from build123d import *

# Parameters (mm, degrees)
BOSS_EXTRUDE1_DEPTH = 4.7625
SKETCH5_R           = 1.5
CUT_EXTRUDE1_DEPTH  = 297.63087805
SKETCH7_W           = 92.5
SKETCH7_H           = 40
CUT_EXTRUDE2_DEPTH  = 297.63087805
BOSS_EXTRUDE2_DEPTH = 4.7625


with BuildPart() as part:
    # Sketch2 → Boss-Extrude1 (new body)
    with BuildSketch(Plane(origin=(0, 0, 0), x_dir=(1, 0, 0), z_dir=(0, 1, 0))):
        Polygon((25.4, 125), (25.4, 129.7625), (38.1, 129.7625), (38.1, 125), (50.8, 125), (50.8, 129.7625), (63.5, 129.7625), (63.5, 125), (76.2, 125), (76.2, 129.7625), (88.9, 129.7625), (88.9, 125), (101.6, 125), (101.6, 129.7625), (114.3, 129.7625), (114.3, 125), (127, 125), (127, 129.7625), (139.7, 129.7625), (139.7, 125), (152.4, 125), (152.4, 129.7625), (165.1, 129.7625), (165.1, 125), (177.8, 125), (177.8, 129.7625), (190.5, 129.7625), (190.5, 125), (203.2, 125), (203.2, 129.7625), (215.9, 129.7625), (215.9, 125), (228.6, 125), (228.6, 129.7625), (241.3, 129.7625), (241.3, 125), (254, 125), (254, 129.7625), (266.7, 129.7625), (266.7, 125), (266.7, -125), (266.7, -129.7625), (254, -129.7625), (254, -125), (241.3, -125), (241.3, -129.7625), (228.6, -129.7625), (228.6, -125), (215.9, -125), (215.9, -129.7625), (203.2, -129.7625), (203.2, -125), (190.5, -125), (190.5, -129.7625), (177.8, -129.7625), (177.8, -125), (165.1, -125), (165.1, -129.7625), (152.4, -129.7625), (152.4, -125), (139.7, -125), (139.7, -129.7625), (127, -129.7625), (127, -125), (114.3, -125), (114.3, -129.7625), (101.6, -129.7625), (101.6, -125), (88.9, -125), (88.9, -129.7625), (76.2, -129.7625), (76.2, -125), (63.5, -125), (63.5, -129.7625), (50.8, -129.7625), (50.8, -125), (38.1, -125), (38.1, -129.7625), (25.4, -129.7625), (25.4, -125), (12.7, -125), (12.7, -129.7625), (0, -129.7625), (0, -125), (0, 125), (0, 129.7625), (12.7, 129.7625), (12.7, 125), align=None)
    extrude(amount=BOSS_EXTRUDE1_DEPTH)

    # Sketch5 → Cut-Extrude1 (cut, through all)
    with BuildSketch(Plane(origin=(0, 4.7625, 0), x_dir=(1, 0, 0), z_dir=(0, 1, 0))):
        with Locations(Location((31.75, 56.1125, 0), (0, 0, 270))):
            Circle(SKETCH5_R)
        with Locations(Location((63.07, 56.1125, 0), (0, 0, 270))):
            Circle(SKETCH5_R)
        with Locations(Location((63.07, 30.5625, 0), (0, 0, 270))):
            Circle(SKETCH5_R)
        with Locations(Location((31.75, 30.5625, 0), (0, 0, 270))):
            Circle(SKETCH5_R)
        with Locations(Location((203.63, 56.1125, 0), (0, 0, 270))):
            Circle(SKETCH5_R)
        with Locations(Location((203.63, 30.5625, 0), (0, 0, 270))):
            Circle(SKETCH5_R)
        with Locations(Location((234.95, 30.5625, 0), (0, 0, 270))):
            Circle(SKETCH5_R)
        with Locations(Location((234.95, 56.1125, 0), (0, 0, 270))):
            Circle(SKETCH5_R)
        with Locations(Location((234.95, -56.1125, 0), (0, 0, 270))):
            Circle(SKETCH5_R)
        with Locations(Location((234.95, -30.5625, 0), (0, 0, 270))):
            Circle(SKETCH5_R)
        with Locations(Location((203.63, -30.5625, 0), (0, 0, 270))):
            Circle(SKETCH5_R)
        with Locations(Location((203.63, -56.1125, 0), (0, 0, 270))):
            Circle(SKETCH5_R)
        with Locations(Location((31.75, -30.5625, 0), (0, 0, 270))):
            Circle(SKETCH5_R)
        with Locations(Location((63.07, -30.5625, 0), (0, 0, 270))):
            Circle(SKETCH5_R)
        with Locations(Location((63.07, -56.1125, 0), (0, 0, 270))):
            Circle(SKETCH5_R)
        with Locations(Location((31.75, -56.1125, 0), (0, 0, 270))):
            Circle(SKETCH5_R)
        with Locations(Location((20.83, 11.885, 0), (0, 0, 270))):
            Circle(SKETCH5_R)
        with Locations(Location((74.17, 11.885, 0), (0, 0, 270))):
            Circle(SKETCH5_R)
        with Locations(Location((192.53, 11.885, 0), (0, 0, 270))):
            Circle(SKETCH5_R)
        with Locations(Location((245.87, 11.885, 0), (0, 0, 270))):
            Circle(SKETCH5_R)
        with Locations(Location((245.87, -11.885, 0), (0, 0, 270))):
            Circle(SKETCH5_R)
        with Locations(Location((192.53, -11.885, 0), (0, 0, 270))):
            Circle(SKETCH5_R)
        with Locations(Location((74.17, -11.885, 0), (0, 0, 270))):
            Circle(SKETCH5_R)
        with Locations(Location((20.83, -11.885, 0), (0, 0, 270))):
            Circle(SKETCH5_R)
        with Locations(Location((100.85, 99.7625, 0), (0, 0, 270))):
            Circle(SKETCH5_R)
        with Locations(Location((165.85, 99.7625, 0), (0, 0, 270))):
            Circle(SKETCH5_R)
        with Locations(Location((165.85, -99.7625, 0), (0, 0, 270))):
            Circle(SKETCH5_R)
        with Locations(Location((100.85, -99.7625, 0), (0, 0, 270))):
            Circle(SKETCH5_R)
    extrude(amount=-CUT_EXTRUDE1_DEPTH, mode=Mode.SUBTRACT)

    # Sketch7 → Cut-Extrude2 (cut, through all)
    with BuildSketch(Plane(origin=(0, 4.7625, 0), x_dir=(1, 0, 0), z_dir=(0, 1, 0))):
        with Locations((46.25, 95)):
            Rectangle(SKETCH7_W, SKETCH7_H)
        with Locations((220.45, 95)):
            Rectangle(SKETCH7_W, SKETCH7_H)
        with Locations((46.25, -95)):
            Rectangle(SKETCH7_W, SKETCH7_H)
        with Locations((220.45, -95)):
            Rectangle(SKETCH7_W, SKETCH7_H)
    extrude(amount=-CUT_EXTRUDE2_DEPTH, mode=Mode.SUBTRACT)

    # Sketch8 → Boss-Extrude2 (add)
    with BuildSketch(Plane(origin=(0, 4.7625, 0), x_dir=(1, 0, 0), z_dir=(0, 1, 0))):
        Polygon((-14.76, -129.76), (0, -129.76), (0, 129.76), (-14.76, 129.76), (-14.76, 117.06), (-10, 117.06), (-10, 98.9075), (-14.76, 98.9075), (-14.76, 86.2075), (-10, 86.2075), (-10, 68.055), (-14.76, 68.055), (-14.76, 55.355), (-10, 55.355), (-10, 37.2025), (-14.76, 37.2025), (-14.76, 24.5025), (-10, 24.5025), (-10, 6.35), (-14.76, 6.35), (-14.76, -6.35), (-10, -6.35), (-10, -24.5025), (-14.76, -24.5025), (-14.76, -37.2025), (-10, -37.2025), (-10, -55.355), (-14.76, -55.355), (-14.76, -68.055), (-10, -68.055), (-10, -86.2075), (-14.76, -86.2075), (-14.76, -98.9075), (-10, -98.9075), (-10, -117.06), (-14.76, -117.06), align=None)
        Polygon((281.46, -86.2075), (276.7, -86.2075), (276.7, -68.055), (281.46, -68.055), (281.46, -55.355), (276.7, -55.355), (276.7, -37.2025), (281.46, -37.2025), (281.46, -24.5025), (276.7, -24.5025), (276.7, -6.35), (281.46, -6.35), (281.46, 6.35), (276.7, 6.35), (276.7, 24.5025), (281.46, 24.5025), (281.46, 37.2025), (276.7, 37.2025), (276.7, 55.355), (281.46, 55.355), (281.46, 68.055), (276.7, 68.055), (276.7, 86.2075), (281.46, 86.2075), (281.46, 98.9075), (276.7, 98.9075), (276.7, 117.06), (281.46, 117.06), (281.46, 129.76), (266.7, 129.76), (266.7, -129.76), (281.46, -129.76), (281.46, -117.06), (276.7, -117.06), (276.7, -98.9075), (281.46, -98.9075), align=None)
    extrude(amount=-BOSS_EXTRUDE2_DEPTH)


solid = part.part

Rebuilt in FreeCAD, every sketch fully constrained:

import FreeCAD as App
import Part
import Sketcher

V = App.Vector


def add_polygon(sketch, points):
    """Adds a closed chain of lines whose ends are joined by coincident constraints."""
    first, n = sketch.GeometryCount, len(points)
    for a, b in zip(points, points[1:] + points[:1]):
        sketch.addGeometry(Part.LineSegment(App.Vector(*a, 0), App.Vector(*b, 0)), False)
    for i in range(n):
        sketch.addConstraint(Sketcher.Constraint("Coincident", first + i, 2, first + (i + 1) % n, 1))

doc = App.newDocument("Part")
body = doc.addObject("PartDesign::Body", "Body")

# Sketch on XZ plane
sketch1 = body.newObject("Sketcher::SketchObject", "Sketch")
sketch1.AttachmentSupport = (doc.getObject("XZ_Plane"), [""])
sketch1.MapMode = "FlatFace"
add_polygon(sketch1, [(25.4, -129.8), (25.4, -125), (12.7, -125), (12.7, -129.8), (0, -129.8), (0, 129.8), (12.7, 129.8), (12.7, 125), (25.4, 125), (25.4, 129.8), (38.1, 129.8), (38.1, 125), (50.8, 125), (50.8, 129.8), (63.5, 129.8), (63.5, 125), (76.2, 125), (76.2, 129.8), (88.9, 129.8), (88.9, 125), (101.6, 125), (101.6, 129.8), (114.3, 129.8), (114.3, 125), (127, 125), (127, 129.8), (139.7, 129.8), (139.7, 125), (152.4, 125), (152.4, 129.8), (165.1, 129.8), (165.1, 125), (177.8, 125), (177.8, 129.8), (190.5, 129.8), (190.5, 125), (203.2, 125), (203.2, 129.8), (215.9, 129.8), (215.9, 125), (228.6, 125), (228.6, 129.8), (241.3, 129.8), (241.3, 125), (254, 125), (254, 129.8), (266.7, 129.8), (266.7, -129.8), (254, -129.8), (254, -125), (241.3, -125), (241.3, -129.8), (228.6, -129.8), (228.6, -125), (215.9, -125), (215.9, -129.8), (203.2, -129.8), (203.2, -125), (190.5, -125), (190.5, -129.8), (177.8, -129.8), (177.8, -125), (165.1, -125), (165.1, -129.8), (152.4, -129.8), (152.4, -125), (139.7, -125), (139.7, -129.8), (127, -129.8), (127, -125), (114.3, -125), (114.3, -129.8), (101.6, -129.8), (101.6, -125), (88.9, -125), (88.9, -129.8), (76.2, -129.8), (76.2, -125), (63.5, -125), (63.5, -129.8), (50.8, -129.8), (50.8, -125), (38.1, -125), (38.1, -129.8)])  # lines 0-83
sketch1.addConstraint(Sketcher.Constraint("Vertical", 0))
sketch1.addConstraint(Sketcher.Constraint("Horizontal", 1))
sketch1.addConstraint(Sketcher.Constraint("Vertical", 2))
sketch1.addConstraint(Sketcher.Constraint("Horizontal", 3))
sketch1.addConstraint(Sketcher.Constraint("Vertical", 4))
sketch1.addConstraint(Sketcher.Constraint("Horizontal", 5))
sketch1.addConstraint(Sketcher.Constraint("Vertical", 6))
sketch1.addConstraint(Sketcher.Constraint("Horizontal", 7))
sketch1.addConstraint(Sketcher.Constraint("Vertical", 8))
sketch1.addConstraint(Sketcher.Constraint("Horizontal", 9))
sketch1.addConstraint(Sketcher.Constraint("Vertical", 10))
sketch1.addConstraint(Sketcher.Constraint("Horizontal", 11))
sketch1.addConstraint(Sketcher.Constraint("Vertical", 12))
sketch1.addConstraint(Sketcher.Constraint("Horizontal", 13))
sketch1.addConstraint(Sketcher.Constraint("Vertical", 14))
sketch1.addConstraint(Sketcher.Constraint("Horizontal", 15))
sketch1.addConstraint(Sketcher.Constraint("Vertical", 16))
sketch1.addConstraint(Sketcher.Constraint("Horizontal", 17))
sketch1.addConstraint(Sketcher.Constraint("Vertical", 18))
sketch1.addConstraint(Sketcher.Constraint("Horizontal", 19))
sketch1.addConstraint(Sketcher.Constraint("Vertical", 20))
sketch1.addConstraint(Sketcher.Constraint("Horizontal", 21))
sketch1.addConstraint(Sketcher.Constraint("Vertical", 22))
sketch1.addConstraint(Sketcher.Constraint("Horizontal", 23))
sketch1.addConstraint(Sketcher.Constraint("Vertical", 24))
sketch1.addConstraint(Sketcher.Constraint("Horizontal", 25))
sketch1.addConstraint(Sketcher.Constraint("Vertical", 26))
sketch1.addConstraint(Sketcher.Constraint("Horizontal", 27))
sketch1.addConstraint(Sketcher.Constraint("Vertical", 28))
sketch1.addConstraint(Sketcher.Constraint("Horizontal", 29))
sketch1.addConstraint(Sketcher.Constraint("Vertical", 30))
sketch1.addConstraint(Sketcher.Constraint("Horizontal", 31))
sketch1.addConstraint(Sketcher.Constraint("Vertical", 32))
sketch1.addConstraint(Sketcher.Constraint("Horizontal", 33))
sketch1.addConstraint(Sketcher.Constraint("Vertical", 34))
sketch1.addConstraint(Sketcher.Constraint("Horizontal", 35))
sketch1.addConstraint(Sketcher.Constraint("Vertical", 36))
sketch1.addConstraint(Sketcher.Constraint("Horizontal", 37))
sketch1.addConstraint(Sketcher.Constraint("Vertical", 38))
sketch1.addConstraint(Sketcher.Constraint("Horizontal", 39))
sketch1.addConstraint(Sketcher.Constraint("Vertical", 40))
sketch1.addConstraint(Sketcher.Constraint("Horizontal", 41))
sketch1.addConstraint(Sketcher.Constraint("Vertical", 42))
sketch1.addConstraint(Sketcher.Constraint("Horizontal", 43))
sketch1.addConstraint(Sketcher.Constraint("Vertical", 44))
sketch1.addConstraint(Sketcher.Constraint("Horizontal", 45))
sketch1.addConstraint(Sketcher.Constraint("Vertical", 46))
sketch1.addConstraint(Sketcher.Constraint("Horizontal", 47))
sketch1.addConstraint(Sketcher.Constraint("Vertical", 48))
sketch1.addConstraint(Sketcher.Constraint("Horizontal", 49))
sketch1.addConstraint(Sketcher.Constraint("Vertical", 50))
sketch1.addConstraint(Sketcher.Constraint("Horizontal", 51))
sketch1.addConstraint(Sketcher.Constraint("Vertical", 52))
sketch1.addConstraint(Sketcher.Constraint("Horizontal", 53))
sketch1.addConstraint(Sketcher.Constraint("Vertical", 54))
sketch1.addConstraint(Sketcher.Constraint("Horizontal", 55))
sketch1.addConstraint(Sketcher.Constraint("Vertical", 56))
sketch1.addConstraint(Sketcher.Constraint("Horizontal", 57))
sketch1.addConstraint(Sketcher.Constraint("Vertical", 58))
sketch1.addConstraint(Sketcher.Constraint("Horizontal", 59))
sketch1.addConstraint(Sketcher.Constraint("Vertical", 60))
sketch1.addConstraint(Sketcher.Constraint("Horizontal", 61))
sketch1.addConstraint(Sketcher.Constraint("Vertical", 62))
sketch1.addConstraint(Sketcher.Constraint("Horizontal", 63))
sketch1.addConstraint(Sketcher.Constraint("Vertical", 64))
sketch1.addConstraint(Sketcher.Constraint("Horizontal", 65))
sketch1.addConstraint(Sketcher.Constraint("Vertical", 66))
sketch1.addConstraint(Sketcher.Constraint("Horizontal", 67))
sketch1.addConstraint(Sketcher.Constraint("Vertical", 68))
sketch1.addConstraint(Sketcher.Constraint("Horizontal", 69))
sketch1.addConstraint(Sketcher.Constraint("Vertical", 70))
sketch1.addConstraint(Sketcher.Constraint("Horizontal", 71))
sketch1.addConstraint(Sketcher.Constraint("Vertical", 72))
sketch1.addConstraint(Sketcher.Constraint("Horizontal", 73))
sketch1.addConstraint(Sketcher.Constraint("Vertical", 74))
sketch1.addConstraint(Sketcher.Constraint("Horizontal", 75))
sketch1.addConstraint(Sketcher.Constraint("Vertical", 76))
sketch1.addConstraint(Sketcher.Constraint("Horizontal", 77))
sketch1.addConstraint(Sketcher.Constraint("Vertical", 78))
sketch1.addConstraint(Sketcher.Constraint("Horizontal", 79))
sketch1.addConstraint(Sketcher.Constraint("Vertical", 80))
sketch1.addConstraint(Sketcher.Constraint("Horizontal", 81))
sketch1.addConstraint(Sketcher.Constraint("Vertical", 82))
sketch1.addConstraint(Sketcher.Constraint("Horizontal", 83))
sketch1.addConstraint(Sketcher.Constraint("Symmetric", 3, 2, 4, 2, -1, 1))
sketch1.addConstraint(Sketcher.Constraint("Symmetric", 1, 2, 6, 2, -1))
sketch1.addConstraint(Sketcher.Constraint("Symmetric", 44, 2, 47, 2, -1))
sketch1.addConstraint(Sketcher.Constraint("Symmetric", 42, 2, 49, 2, -1))
sketch1.addConstraint(Sketcher.Constraint("Symmetric", 40, 2, 51, 2, -1))
sketch1.addConstraint(Sketcher.Constraint("Symmetric", 38, 2, 53, 2, -1))
sketch1.addConstraint(Sketcher.Constraint("Symmetric", 36, 2, 55, 2, -1))
sketch1.addConstraint(Sketcher.Constraint("Symmetric", 34, 2, 57, 2, -1))
sketch1.addConstraint(Sketcher.Constraint("Symmetric", 32, 2, 59, 2, -1))
sketch1.addConstraint(Sketcher.Constraint("Symmetric", 30, 2, 61, 2, -1))
sketch1.addConstraint(Sketcher.Constraint("Symmetric", 28, 2, 63, 2, -1))
sketch1.addConstraint(Sketcher.Constraint("Symmetric", 26, 2, 65, 2, -1))
sketch1.addConstraint(Sketcher.Constraint("Symmetric", 24, 2, 67, 2, -1))
sketch1.addConstraint(Sketcher.Constraint("Symmetric", 22, 2, 69, 2, -1))
sketch1.addConstraint(Sketcher.Constraint("Symmetric", 20, 2, 71, 2, -1))
sketch1.addConstraint(Sketcher.Constraint("Symmetric", 18, 2, 73, 2, -1))
sketch1.addConstraint(Sketcher.Constraint("Symmetric", 16, 2, 75, 2, -1))
sketch1.addConstraint(Sketcher.Constraint("Symmetric", 14, 2, 77, 2, -1))
sketch1.addConstraint(Sketcher.Constraint("Symmetric", 12, 2, 79, 2, -1))
sketch1.addConstraint(Sketcher.Constraint("Symmetric", 10, 2, 81, 2, -1))
sketch1.addConstraint(Sketcher.Constraint("Symmetric", 8, 2, 83, 2, -1))
sketch1.addConstraint(Sketcher.Constraint("Horizontal", 5, 2, 8, 2))
sketch1.addConstraint(Sketcher.Constraint("Horizontal", 7, 2, 10, 2))
sketch1.addConstraint(Sketcher.Constraint("Horizontal", 9, 2, 12, 2))
sketch1.addConstraint(Sketcher.Constraint("Horizontal", 11, 2, 14, 2))
sketch1.addConstraint(Sketcher.Constraint("Horizontal", 13, 2, 16, 2))
sketch1.addConstraint(Sketcher.Constraint("Horizontal", 15, 2, 18, 2))
sketch1.addConstraint(Sketcher.Constraint("Horizontal", 17, 2, 20, 2))
sketch1.addConstraint(Sketcher.Constraint("Horizontal", 19, 2, 22, 2))
sketch1.addConstraint(Sketcher.Constraint("Horizontal", 21, 2, 24, 2))
sketch1.addConstraint(Sketcher.Constraint("Horizontal", 23, 2, 26, 2))
sketch1.addConstraint(Sketcher.Constraint("Horizontal", 25, 2, 28, 2))
sketch1.addConstraint(Sketcher.Constraint("Horizontal", 27, 2, 30, 2))
sketch1.addConstraint(Sketcher.Constraint("Horizontal", 29, 2, 32, 2))
sketch1.addConstraint(Sketcher.Constraint("Horizontal", 31, 2, 34, 2))
sketch1.addConstraint(Sketcher.Constraint("Horizontal", 33, 2, 36, 2))
sketch1.addConstraint(Sketcher.Constraint("Horizontal", 35, 2, 38, 2))
sketch1.addConstraint(Sketcher.Constraint("Horizontal", 37, 2, 40, 2))
sketch1.addConstraint(Sketcher.Constraint("Horizontal", 39, 2, 42, 2))
sketch1.addConstraint(Sketcher.Constraint("Horizontal", 41, 2, 44, 2))
sketch1.addConstraint(Sketcher.Constraint("Equal", 1, 3))
sketch1.addConstraint(Sketcher.Constraint("Equal", 7, 9))
sketch1.addConstraint(Sketcher.Constraint("Equal", 9, 11))
sketch1.addConstraint(Sketcher.Constraint("Equal", 11, 13))
sketch1.addConstraint(Sketcher.Constraint("Equal", 13, 15))
sketch1.addConstraint(Sketcher.Constraint("Equal", 15, 17))
sketch1.addConstraint(Sketcher.Constraint("Equal", 17, 19))
sketch1.addConstraint(Sketcher.Constraint("Equal", 19, 21))
sketch1.addConstraint(Sketcher.Constraint("Equal", 21, 23))
sketch1.addConstraint(Sketcher.Constraint("Equal", 23, 25))
sketch1.addConstraint(Sketcher.Constraint("Equal", 25, 27))
sketch1.addConstraint(Sketcher.Constraint("Equal", 27, 29))
sketch1.addConstraint(Sketcher.Constraint("Equal", 29, 31))
sketch1.addConstraint(Sketcher.Constraint("Equal", 31, 33))
sketch1.addConstraint(Sketcher.Constraint("Equal", 33, 35))
sketch1.addConstraint(Sketcher.Constraint("Equal", 35, 37))
sketch1.addConstraint(Sketcher.Constraint("Equal", 37, 39))
sketch1.addConstraint(Sketcher.Constraint("Equal", 39, 41))
sketch1.addConstraint(Sketcher.Constraint("Equal", 41, 43))
sketch1.addConstraint(Sketcher.Constraint("Equal", 43, 45))
sketch1.addConstraint(Sketcher.Constraint("DistanceX", 1, 2, 1, 1, 12.7))
sketch1.addConstraint(Sketcher.Constraint("DistanceY", 0, 2, -1, 1, 125.0))
sketch1.addConstraint(Sketcher.Constraint("DistanceY", 4, 1, 4, 2, 259.525))
pad1 = body.newObject("PartDesign::Pad", "Pad")
pad1.Profile = sketch1
pad1.Length = 4.7625
pad1.Reversed = True

# Sketch on XZ plane
sketch2 = body.newObject("Sketcher::SketchObject", "Sketch001")
sketch2.AttachmentSupport = (doc.getObject("XZ_Plane"), [""])
sketch2.MapMode = "FlatFace"
sketch2.AttachmentOffset = App.Placement(V(0, 0, -4.7625), App.Rotation())
sketch2.addGeometry(Part.Circle(V(31.8, -56.1, 0), V(0, 0, 1), 1.5), False)
sketch2.addGeometry(Part.Circle(V(63.1, -56.1, 0), V(0, 0, 1), 1.5), False)
sketch2.addGeometry(Part.Circle(V(63.1, -30.6, 0), V(0, 0, 1), 1.5), False)
sketch2.addGeometry(Part.Circle(V(31.8, -30.6, 0), V(0, 0, 1), 1.5), False)
sketch2.addGeometry(Part.Circle(V(203.6, -56.1, 0), V(0, 0, 1), 1.5), False)
sketch2.addGeometry(Part.Circle(V(203.6, -30.6, 0), V(0, 0, 1), 1.5), False)
sketch2.addGeometry(Part.Circle(V(234.9, -30.6, 0), V(0, 0, 1), 1.5), False)
sketch2.addGeometry(Part.Circle(V(234.9, -56.1, 0), V(0, 0, 1), 1.5), False)
sketch2.addGeometry(Part.Circle(V(234.9, 56.1, 0), V(0, 0, 1), 1.5), False)
sketch2.addGeometry(Part.Circle(V(234.9, 30.6, 0), V(0, 0, 1), 1.5), False)
sketch2.addGeometry(Part.Circle(V(203.6, 30.6, 0), V(0, 0, 1), 1.5), False)
sketch2.addGeometry(Part.Circle(V(203.6, 56.1, 0), V(0, 0, 1), 1.5), False)
sketch2.addGeometry(Part.Circle(V(31.8, 30.6, 0), V(0, 0, 1), 1.5), False)
sketch2.addGeometry(Part.Circle(V(63.1, 30.6, 0), V(0, 0, 1), 1.5), False)
sketch2.addGeometry(Part.Circle(V(63.1, 56.1, 0), V(0, 0, 1), 1.5), False)
sketch2.addGeometry(Part.Circle(V(31.8, 56.1, 0), V(0, 0, 1), 1.5), False)
sketch2.addGeometry(Part.Circle(V(20.8, -11.9, 0), V(0, 0, 1), 1.5), False)
sketch2.addGeometry(Part.Circle(V(74.2, -11.9, 0), V(0, 0, 1), 1.5), False)
sketch2.addGeometry(Part.Circle(V(192.5, -11.9, 0), V(0, 0, 1), 1.5), False)
sketch2.addGeometry(Part.Circle(V(245.9, -11.9, 0), V(0, 0, 1), 1.5), False)
sketch2.addGeometry(Part.Circle(V(245.9, 11.9, 0), V(0, 0, 1), 1.5), False)
sketch2.addGeometry(Part.Circle(V(192.5, 11.9, 0), V(0, 0, 1), 1.5), False)
sketch2.addGeometry(Part.Circle(V(74.2, 11.9, 0), V(0, 0, 1), 1.5), False)
sketch2.addGeometry(Part.Circle(V(20.8, 11.9, 0), V(0, 0, 1), 1.5), False)
sketch2.addGeometry(Part.Circle(V(100.8, -99.8, 0), V(0, 0, 1), 1.5), False)
sketch2.addGeometry(Part.Circle(V(165.8, -99.8, 0), V(0, 0, 1), 1.5), False)
sketch2.addGeometry(Part.Circle(V(165.8, 99.8, 0), V(0, 0, 1), 1.5), False)
sketch2.addGeometry(Part.Circle(V(100.8, 99.8, 0), V(0, 0, 1), 1.5), False)
sketch2.addConstraint(Sketcher.Constraint("Equal", 0, 1))
sketch2.addConstraint(Sketcher.Constraint("Equal", 1, 2))
sketch2.addConstraint(Sketcher.Constraint("Equal", 2, 3))
sketch2.addConstraint(Sketcher.Constraint("Equal", 3, 4))
sketch2.addConstraint(Sketcher.Constraint("Equal", 4, 5))
sketch2.addConstraint(Sketcher.Constraint("Equal", 5, 6))
sketch2.addConstraint(Sketcher.Constraint("Equal", 6, 7))
sketch2.addConstraint(Sketcher.Constraint("Equal", 7, 8))
sketch2.addConstraint(Sketcher.Constraint("Equal", 8, 9))
sketch2.addConstraint(Sketcher.Constraint("Equal", 9, 10))
sketch2.addConstraint(Sketcher.Constraint("Equal", 10, 11))
sketch2.addConstraint(Sketcher.Constraint("Equal", 11, 12))
sketch2.addConstraint(Sketcher.Constraint("Equal", 12, 13))
sketch2.addConstraint(Sketcher.Constraint("Equal", 13, 14))
sketch2.addConstraint(Sketcher.Constraint("Equal", 14, 15))
sketch2.addConstraint(Sketcher.Constraint("Equal", 15, 16))
sketch2.addConstraint(Sketcher.Constraint("Equal", 16, 17))
sketch2.addConstraint(Sketcher.Constraint("Equal", 17, 18))
sketch2.addConstraint(Sketcher.Constraint("Equal", 18, 19))
sketch2.addConstraint(Sketcher.Constraint("Equal", 19, 20))
sketch2.addConstraint(Sketcher.Constraint("Equal", 20, 21))
sketch2.addConstraint(Sketcher.Constraint("Equal", 21, 22))
sketch2.addConstraint(Sketcher.Constraint("Equal", 22, 23))
sketch2.addConstraint(Sketcher.Constraint("Equal", 23, 24))
sketch2.addConstraint(Sketcher.Constraint("Equal", 24, 25))
sketch2.addConstraint(Sketcher.Constraint("Equal", 25, 26))
sketch2.addConstraint(Sketcher.Constraint("Equal", 26, 27))
sketch2.addConstraint(Sketcher.Constraint("Symmetric", 7, 3, 8, 3, -1))
sketch2.addConstraint(Sketcher.Constraint("Symmetric", 6, 3, 9, 3, -1))
sketch2.addConstraint(Sketcher.Constraint("Symmetric", 5, 3, 10, 3, -1))
sketch2.addConstraint(Sketcher.Constraint("Symmetric", 4, 3, 11, 3, -1))
sketch2.addConstraint(Sketcher.Constraint("Symmetric", 3, 3, 12, 3, -1))
sketch2.addConstraint(Sketcher.Constraint("Symmetric", 2, 3, 13, 3, -1))
sketch2.addConstraint(Sketcher.Constraint("Symmetric", 1, 3, 14, 3, -1))
sketch2.addConstraint(Sketcher.Constraint("Symmetric", 0, 3, 15, 3, -1))
sketch2.addConstraint(Sketcher.Constraint("Symmetric", 19, 3, 20, 3, -1))
sketch2.addConstraint(Sketcher.Constraint("Symmetric", 18, 3, 21, 3, -1))
sketch2.addConstraint(Sketcher.Constraint("Symmetric", 17, 3, 22, 3, -1))
sketch2.addConstraint(Sketcher.Constraint("Symmetric", 16, 3, 23, 3, -1))
sketch2.addConstraint(Sketcher.Constraint("Symmetric", 25, 3, 26, 3, -1))
sketch2.addConstraint(Sketcher.Constraint("Symmetric", 24, 3, 27, 3, -1))
sketch2.addConstraint(Sketcher.Constraint("Horizontal", 0, 3, 1, 3))
sketch2.addConstraint(Sketcher.Constraint("Horizontal", 2, 3, 3, 3))
sketch2.addConstraint(Sketcher.Constraint("Horizontal", 1, 3, 4, 3))
sketch2.addConstraint(Sketcher.Constraint("Horizontal", 3, 3, 5, 3))
sketch2.addConstraint(Sketcher.Constraint("Horizontal", 5, 3, 6, 3))
sketch2.addConstraint(Sketcher.Constraint("Horizontal", 4, 3, 7, 3))
sketch2.addConstraint(Sketcher.Constraint("Horizontal", 16, 3, 17, 3))
sketch2.addConstraint(Sketcher.Constraint("Horizontal", 17, 3, 18, 3))
sketch2.addConstraint(Sketcher.Constraint("Horizontal", 18, 3, 19, 3))
sketch2.addConstraint(Sketcher.Constraint("Horizontal", 24, 3, 25, 3))
sketch2.addConstraint(Sketcher.Constraint("Vertical", 1, 3, 2, 3))
sketch2.addConstraint(Sketcher.Constraint("Vertical", 0, 3, 3, 3))
sketch2.addConstraint(Sketcher.Constraint("Vertical", 4, 3, 5, 3))
sketch2.addConstraint(Sketcher.Constraint("Vertical", 6, 3, 7, 3))
sketch2.addConstraint(Sketcher.Constraint("Diameter", 0, 3.0))
sketch2.addConstraint(Sketcher.Constraint("DistanceX", 24, 3, 25, 3, 65.0))
sketch2.addConstraint(Sketcher.Constraint("DistanceX", 3, 3, 6, 3, 203.2))
sketch2.addConstraint(Sketcher.Constraint("DistanceX", 2, 3, 17, 3, 11.1))
sketch2.addConstraint(Sketcher.Constraint("DistanceX", 18, 3, 5, 3, 11.1))
sketch2.addConstraint(Sketcher.Constraint("DistanceY", 24, 3, 2, 3, 69.2))
sketch2.addConstraint(Sketcher.Constraint("DistanceX", 0, 3, 24, 3, 69.1))
sketch2.addConstraint(Sketcher.Constraint("DistanceX", -1, 1, 0, 3, 31.75))
sketch2.addConstraint(Sketcher.Constraint("DistanceX", -1, 1, 1, 3, 63.07))
sketch2.addConstraint(Sketcher.Constraint("DistanceX", -1, 1, 4, 3, 203.63))
sketch2.addConstraint(Sketcher.Constraint("DistanceX", -1, 1, 16, 3, 20.83))
sketch2.addConstraint(Sketcher.Constraint("DistanceX", -1, 1, 19, 3, 245.87))
sketch2.addConstraint(Sketcher.Constraint("DistanceY", 1, 3, 2, 3, 25.55))
sketch2.addConstraint(Sketcher.Constraint("DistanceY", 19, 3, 20, 3, 23.77))
sketch2.addConstraint(Sketcher.Constraint("DistanceY", 6, 3, 8, 3, 86.675))
pocket1 = body.newObject("PartDesign::Pocket", "Pocket")
pocket1.Profile = sketch2
pocket1.Type = "ThroughAll"
pocket1.Reversed = True

# Sketch on XZ plane
sketch3 = body.newObject("Sketcher::SketchObject", "Sketch002")
sketch3.AttachmentSupport = (doc.getObject("XZ_Plane"), [""])
sketch3.MapMode = "FlatFace"
sketch3.AttachmentOffset = App.Placement(V(0, 0, -4.7625), App.Rotation())
add_polygon(sketch3, [(0, -115), (0, -75), (92, -75), (92, -115)])  # lines 0-3
add_polygon(sketch3, [(174, -115), (174, -75), (267, -75), (267, -115)])  # lines 4-7
add_polygon(sketch3, [(0, 75), (0, 115), (92, 115), (92, 75)])  # lines 8-11
add_polygon(sketch3, [(174, 75), (174, 115), (267, 115), (267, 75)])  # lines 12-15
sketch3.addConstraint(Sketcher.Constraint("Vertical", 0))
sketch3.addConstraint(Sketcher.Constraint("Horizontal", 1))
sketch3.addConstraint(Sketcher.Constraint("Vertical", 2))
sketch3.addConstraint(Sketcher.Constraint("Horizontal", 3))
sketch3.addConstraint(Sketcher.Constraint("Vertical", 4))
sketch3.addConstraint(Sketcher.Constraint("Horizontal", 5))
sketch3.addConstraint(Sketcher.Constraint("Vertical", 6))
sketch3.addConstraint(Sketcher.Constraint("Horizontal", 7))
sketch3.addConstraint(Sketcher.Constraint("Vertical", 8))
sketch3.addConstraint(Sketcher.Constraint("Horizontal", 9))
sketch3.addConstraint(Sketcher.Constraint("Vertical", 10))
sketch3.addConstraint(Sketcher.Constraint("Horizontal", 11))
sketch3.addConstraint(Sketcher.Constraint("Vertical", 12))
sketch3.addConstraint(Sketcher.Constraint("Horizontal", 13))
sketch3.addConstraint(Sketcher.Constraint("Vertical", 14))
sketch3.addConstraint(Sketcher.Constraint("Horizontal", 15))
sketch3.addConstraint(Sketcher.Constraint("Symmetric", 3, 2, 8, 2, -1, 1))
sketch3.addConstraint(Sketcher.Constraint("Symmetric", 1, 2, 10, 2, -1))
sketch3.addConstraint(Sketcher.Constraint("Symmetric", 7, 2, 12, 2, -1))
sketch3.addConstraint(Sketcher.Constraint("Symmetric", 5, 2, 14, 2, -1))
sketch3.addConstraint(Sketcher.Constraint("PointOnObject", 0, 2, -2))
sketch3.addConstraint(Sketcher.Constraint("Horizontal", 1, 2, 4, 2))
sketch3.addConstraint(Sketcher.Constraint("Horizontal", 3, 2, 6, 2))
sketch3.addConstraint(Sketcher.Constraint("Equal", 3, 5))
sketch3.addConstraint(Sketcher.Constraint("DistanceY", 0, 1, 0, 2, 40.0))
sketch3.addConstraint(Sketcher.Constraint("DistanceX", 1, 1, 1, 2, 92.5))
sketch3.addConstraint(Sketcher.Constraint("DistanceY", 0, 2, -1, 1, 75.0))
sketch3.addConstraint(Sketcher.Constraint("DistanceX", -1, 1, 4, 2, 174.2))
pocket2 = body.newObject("PartDesign::Pocket", "Pocket001")
pocket2.Profile = sketch3
pocket2.Type = "ThroughAll"
pocket2.Reversed = True

# Sketch on XZ plane
sketch4 = body.newObject("Sketcher::SketchObject", "Sketch003")
sketch4.AttachmentSupport = (doc.getObject("XZ_Plane"), [""])
sketch4.MapMode = "FlatFace"
sketch4.AttachmentOffset = App.Placement(V(0, 0, -4.7625), App.Rotation())
add_polygon(sketch4, [(-14.8, 129.8), (0, 129.8), (0, -129.8), (-14.8, -129.8), (-14.8, -117.1), (-10, -117.1), (-10, -98.9), (-14.8, -98.9), (-14.8, -86.2), (-10, -86.2), (-10, -68.1), (-14.8, -68.1), (-14.8, -55.4), (-10, -55.4), (-10, -37.2), (-14.8, -37.2), (-14.8, -24.5), (-10, -24.5), (-10, -6.3), (-14.8, -6.3), (-14.8, 6.3), (-10, 6.3), (-10, 24.5), (-14.8, 24.5), (-14.8, 37.2), (-10, 37.2), (-10, 55.4), (-14.8, 55.4), (-14.8, 68.1), (-10, 68.1), (-10, 86.2), (-14.8, 86.2), (-14.8, 98.9), (-10, 98.9), (-10, 117.1), (-14.8, 117.1)])  # lines 0-35
add_polygon(sketch4, [(281.5, 86.2), (276.7, 86.2), (276.7, 68.1), (281.5, 68.1), (281.5, 55.4), (276.7, 55.4), (276.7, 37.2), (281.5, 37.2), (281.5, 24.5), (276.7, 24.5), (276.7, 6.3), (281.5, 6.3), (281.5, -6.3), (276.7, -6.3), (276.7, -24.5), (281.5, -24.5), (281.5, -37.2), (276.7, -37.2), (276.7, -55.4), (281.5, -55.4), (281.5, -68.1), (276.7, -68.1), (276.7, -86.2), (281.5, -86.2), (281.5, -98.9), (276.7, -98.9), (276.7, -117.1), (281.5, -117.1), (281.5, -129.8), (266.7, -129.8), (266.7, 129.8), (281.5, 129.8), (281.5, 117.1), (276.7, 117.1), (276.7, 98.9), (281.5, 98.9)])  # lines 36-71
sketch4.addConstraint(Sketcher.Constraint("Horizontal", 0))
sketch4.addConstraint(Sketcher.Constraint("Vertical", 1))
sketch4.addConstraint(Sketcher.Constraint("Horizontal", 2))
sketch4.addConstraint(Sketcher.Constraint("Vertical", 3))
sketch4.addConstraint(Sketcher.Constraint("Horizontal", 4))
sketch4.addConstraint(Sketcher.Constraint("Vertical", 5))
sketch4.addConstraint(Sketcher.Constraint("Horizontal", 6))
sketch4.addConstraint(Sketcher.Constraint("Vertical", 7))
sketch4.addConstraint(Sketcher.Constraint("Horizontal", 8))
sketch4.addConstraint(Sketcher.Constraint("Vertical", 9))
sketch4.addConstraint(Sketcher.Constraint("Horizontal", 10))
sketch4.addConstraint(Sketcher.Constraint("Vertical", 11))
sketch4.addConstraint(Sketcher.Constraint("Horizontal", 12))
sketch4.addConstraint(Sketcher.Constraint("Vertical", 13))
sketch4.addConstraint(Sketcher.Constraint("Horizontal", 14))
sketch4.addConstraint(Sketcher.Constraint("Vertical", 15))
sketch4.addConstraint(Sketcher.Constraint("Horizontal", 16))
sketch4.addConstraint(Sketcher.Constraint("Vertical", 17))
sketch4.addConstraint(Sketcher.Constraint("Horizontal", 18))
sketch4.addConstraint(Sketcher.Constraint("Vertical", 19))
sketch4.addConstraint(Sketcher.Constraint("Horizontal", 20))
sketch4.addConstraint(Sketcher.Constraint("Vertical", 21))
sketch4.addConstraint(Sketcher.Constraint("Horizontal", 22))
sketch4.addConstraint(Sketcher.Constraint("Vertical", 23))
sketch4.addConstraint(Sketcher.Constraint("Horizontal", 24))
sketch4.addConstraint(Sketcher.Constraint("Vertical", 25))
sketch4.addConstraint(Sketcher.Constraint("Horizontal", 26))
sketch4.addConstraint(Sketcher.Constraint("Vertical", 27))
sketch4.addConstraint(Sketcher.Constraint("Horizontal", 28))
sketch4.addConstraint(Sketcher.Constraint("Vertical", 29))
sketch4.addConstraint(Sketcher.Constraint("Horizontal", 30))
sketch4.addConstraint(Sketcher.Constraint("Vertical", 31))
sketch4.addConstraint(Sketcher.Constraint("Horizontal", 32))
sketch4.addConstraint(Sketcher.Constraint("Vertical", 33))
sketch4.addConstraint(Sketcher.Constraint("Horizontal", 34))
sketch4.addConstraint(Sketcher.Constraint("Vertical", 35))
sketch4.addConstraint(Sketcher.Constraint("Horizontal", 36))
sketch4.addConstraint(Sketcher.Constraint("Vertical", 37))
sketch4.addConstraint(Sketcher.Constraint("Horizontal", 38))
sketch4.addConstraint(Sketcher.Constraint("Vertical", 39))
sketch4.addConstraint(Sketcher.Constraint("Horizontal", 40))
sketch4.addConstraint(Sketcher.Constraint("Vertical", 41))
sketch4.addConstraint(Sketcher.Constraint("Horizontal", 42))
sketch4.addConstraint(Sketcher.Constraint("Vertical", 43))
sketch4.addConstraint(Sketcher.Constraint("Horizontal", 44))
sketch4.addConstraint(Sketcher.Constraint("Vertical", 45))
sketch4.addConstraint(Sketcher.Constraint("Horizontal", 46))
sketch4.addConstraint(Sketcher.Constraint("Vertical", 47))
sketch4.addConstraint(Sketcher.Constraint("Horizontal", 48))
sketch4.addConstraint(Sketcher.Constraint("Vertical", 49))
sketch4.addConstraint(Sketcher.Constraint("Horizontal", 50))
sketch4.addConstraint(Sketcher.Constraint("Vertical", 51))
sketch4.addConstraint(Sketcher.Constraint("Horizontal", 52))
sketch4.addConstraint(Sketcher.Constraint("Vertical", 53))
sketch4.addConstraint(Sketcher.Constraint("Horizontal", 54))
sketch4.addConstraint(Sketcher.Constraint("Vertical", 55))
sketch4.addConstraint(Sketcher.Constraint("Horizontal", 56))
sketch4.addConstraint(Sketcher.Constraint("Vertical", 57))
sketch4.addConstraint(Sketcher.Constraint("Horizontal", 58))
sketch4.addConstraint(Sketcher.Constraint("Vertical", 59))
sketch4.addConstraint(Sketcher.Constraint("Horizontal", 60))
sketch4.addConstraint(Sketcher.Constraint("Vertical", 61))
sketch4.addConstraint(Sketcher.Constraint("Horizontal", 62))
sketch4.addConstraint(Sketcher.Constraint("Vertical", 63))
sketch4.addConstraint(Sketcher.Constraint("Horizontal", 64))
sketch4.addConstraint(Sketcher.Constraint("Vertical", 65))
sketch4.addConstraint(Sketcher.Constraint("Horizontal", 66))
sketch4.addConstraint(Sketcher.Constraint("Vertical", 67))
sketch4.addConstraint(Sketcher.Constraint("Horizontal", 68))
sketch4.addConstraint(Sketcher.Constraint("Vertical", 69))
sketch4.addConstraint(Sketcher.Constraint("Horizontal", 70))
sketch4.addConstraint(Sketcher.Constraint("Vertical", 71))
sketch4.addConstraint(Sketcher.Constraint("Symmetric", 0, 2, 1, 2, -1, 1))
sketch4.addConstraint(Sketcher.Constraint("Symmetric", 17, 2, 20, 2, -1))
sketch4.addConstraint(Sketcher.Constraint("Symmetric", 15, 2, 22, 2, -1))
sketch4.addConstraint(Sketcher.Constraint("Symmetric", 13, 2, 24, 2, -1))
sketch4.addConstraint(Sketcher.Constraint("Symmetric", 11, 2, 26, 2, -1))
sketch4.addConstraint(Sketcher.Constraint("Symmetric", 9, 2, 28, 2, -1))
sketch4.addConstraint(Sketcher.Constraint("Symmetric", 7, 2, 30, 2, -1))
sketch4.addConstraint(Sketcher.Constraint("Symmetric", 5, 2, 32, 2, -1))
sketch4.addConstraint(Sketcher.Constraint("Symmetric", 3, 2, 34, 2, -1))
sketch4.addConstraint(Sketcher.Constraint("Symmetric", 45, 2, 48, 2, -1))
sketch4.addConstraint(Sketcher.Constraint("Symmetric", 43, 2, 50, 2, -1))
sketch4.addConstraint(Sketcher.Constraint("Symmetric", 41, 2, 52, 2, -1))
sketch4.addConstraint(Sketcher.Constraint("Symmetric", 39, 2, 54, 2, -1))
sketch4.addConstraint(Sketcher.Constraint("Symmetric", 37, 2, 56, 2, -1))
sketch4.addConstraint(Sketcher.Constraint("Symmetric", 63, 2, 66, 2, -1))
sketch4.addConstraint(Sketcher.Constraint("Symmetric", 61, 2, 68, 2, -1))
sketch4.addConstraint(Sketcher.Constraint("Symmetric", 59, 2, 70, 2, -1))
sketch4.addConstraint(Sketcher.Constraint("Horizontal", 30, 2, 36, 2))
sketch4.addConstraint(Sketcher.Constraint("Horizontal", 28, 2, 37, 2))
sketch4.addConstraint(Sketcher.Constraint("Horizontal", 26, 2, 39, 2))
sketch4.addConstraint(Sketcher.Constraint("Horizontal", 24, 2, 41, 2))
sketch4.addConstraint(Sketcher.Constraint("Horizontal", 22, 2, 43, 2))
sketch4.addConstraint(Sketcher.Constraint("Horizontal", 20, 2, 45, 2))
sketch4.addConstraint(Sketcher.Constraint("Horizontal", 8, 2, 57, 2))
sketch4.addConstraint(Sketcher.Constraint("Horizontal", 6, 2, 59, 2))
sketch4.addConstraint(Sketcher.Constraint("Horizontal", 4, 2, 61, 2))
sketch4.addConstraint(Sketcher.Constraint("Horizontal", 2, 2, 63, 2))
sketch4.addConstraint(Sketcher.Constraint("Vertical", 3, 2, 6, 2))
sketch4.addConstraint(Sketcher.Constraint("Vertical", 5, 2, 8, 2))
sketch4.addConstraint(Sketcher.Constraint("Vertical", 7, 2, 10, 2))
sketch4.addConstraint(Sketcher.Constraint("Vertical", 9, 2, 12, 2))
sketch4.addConstraint(Sketcher.Constraint("Vertical", 11, 2, 14, 2))
sketch4.addConstraint(Sketcher.Constraint("Vertical", 13, 2, 16, 2))
sketch4.addConstraint(Sketcher.Constraint("Vertical", 15, 2, 18, 2))
sketch4.addConstraint(Sketcher.Constraint("Vertical", 37, 2, 40, 2))
sketch4.addConstraint(Sketcher.Constraint("Vertical", 39, 2, 42, 2))
sketch4.addConstraint(Sketcher.Constraint("Vertical", 41, 2, 44, 2))
sketch4.addConstraint(Sketcher.Constraint("Vertical", 43, 2, 46, 2))
sketch4.addConstraint(Sketcher.Constraint("Vertical", 55, 2, 58, 2))
sketch4.addConstraint(Sketcher.Constraint("Vertical", 57, 2, 60, 2))
sketch4.addConstraint(Sketcher.Constraint("Vertical", 59, 2, 62, 2))
sketch4.addConstraint(Sketcher.Constraint("Equal", 34, 36))
sketch4.addConstraint(Sketcher.Constraint("Equal", 2, 64))
sketch4.addConstraint(Sketcher.Constraint("Equal", 3, 7))
sketch4.addConstraint(Sketcher.Constraint("Equal", 5, 9))
sketch4.addConstraint(Sketcher.Constraint("Equal", 7, 11))
sketch4.addConstraint(Sketcher.Constraint("Equal", 9, 13))
sketch4.addConstraint(Sketcher.Constraint("Equal", 11, 15))
sketch4.addConstraint(Sketcher.Constraint("Equal", 13, 17))
sketch4.addConstraint(Sketcher.Constraint("Equal", 15, 19))
sketch4.addConstraint(Sketcher.Constraint("DistanceY", 3, 1, 3, 2, 12.7))
sketch4.addConstraint(Sketcher.Constraint("DistanceX", 4, 2, -1, 1, 10.0))
sketch4.addConstraint(Sketcher.Constraint("DistanceX", 0, 1, 0, 2, 14.76))
sketch4.addConstraint(Sketcher.Constraint("DistanceY", 1, 2, 1, 1, 259.52))
sketch4.addConstraint(Sketcher.Constraint("DistanceX", -1, 1, 36, 2, 276.7))
pad2 = body.newObject("PartDesign::Pad", "Pad001")
pad2.Profile = sketch4
pad2.Length = 4.7625

doc.recompute()
